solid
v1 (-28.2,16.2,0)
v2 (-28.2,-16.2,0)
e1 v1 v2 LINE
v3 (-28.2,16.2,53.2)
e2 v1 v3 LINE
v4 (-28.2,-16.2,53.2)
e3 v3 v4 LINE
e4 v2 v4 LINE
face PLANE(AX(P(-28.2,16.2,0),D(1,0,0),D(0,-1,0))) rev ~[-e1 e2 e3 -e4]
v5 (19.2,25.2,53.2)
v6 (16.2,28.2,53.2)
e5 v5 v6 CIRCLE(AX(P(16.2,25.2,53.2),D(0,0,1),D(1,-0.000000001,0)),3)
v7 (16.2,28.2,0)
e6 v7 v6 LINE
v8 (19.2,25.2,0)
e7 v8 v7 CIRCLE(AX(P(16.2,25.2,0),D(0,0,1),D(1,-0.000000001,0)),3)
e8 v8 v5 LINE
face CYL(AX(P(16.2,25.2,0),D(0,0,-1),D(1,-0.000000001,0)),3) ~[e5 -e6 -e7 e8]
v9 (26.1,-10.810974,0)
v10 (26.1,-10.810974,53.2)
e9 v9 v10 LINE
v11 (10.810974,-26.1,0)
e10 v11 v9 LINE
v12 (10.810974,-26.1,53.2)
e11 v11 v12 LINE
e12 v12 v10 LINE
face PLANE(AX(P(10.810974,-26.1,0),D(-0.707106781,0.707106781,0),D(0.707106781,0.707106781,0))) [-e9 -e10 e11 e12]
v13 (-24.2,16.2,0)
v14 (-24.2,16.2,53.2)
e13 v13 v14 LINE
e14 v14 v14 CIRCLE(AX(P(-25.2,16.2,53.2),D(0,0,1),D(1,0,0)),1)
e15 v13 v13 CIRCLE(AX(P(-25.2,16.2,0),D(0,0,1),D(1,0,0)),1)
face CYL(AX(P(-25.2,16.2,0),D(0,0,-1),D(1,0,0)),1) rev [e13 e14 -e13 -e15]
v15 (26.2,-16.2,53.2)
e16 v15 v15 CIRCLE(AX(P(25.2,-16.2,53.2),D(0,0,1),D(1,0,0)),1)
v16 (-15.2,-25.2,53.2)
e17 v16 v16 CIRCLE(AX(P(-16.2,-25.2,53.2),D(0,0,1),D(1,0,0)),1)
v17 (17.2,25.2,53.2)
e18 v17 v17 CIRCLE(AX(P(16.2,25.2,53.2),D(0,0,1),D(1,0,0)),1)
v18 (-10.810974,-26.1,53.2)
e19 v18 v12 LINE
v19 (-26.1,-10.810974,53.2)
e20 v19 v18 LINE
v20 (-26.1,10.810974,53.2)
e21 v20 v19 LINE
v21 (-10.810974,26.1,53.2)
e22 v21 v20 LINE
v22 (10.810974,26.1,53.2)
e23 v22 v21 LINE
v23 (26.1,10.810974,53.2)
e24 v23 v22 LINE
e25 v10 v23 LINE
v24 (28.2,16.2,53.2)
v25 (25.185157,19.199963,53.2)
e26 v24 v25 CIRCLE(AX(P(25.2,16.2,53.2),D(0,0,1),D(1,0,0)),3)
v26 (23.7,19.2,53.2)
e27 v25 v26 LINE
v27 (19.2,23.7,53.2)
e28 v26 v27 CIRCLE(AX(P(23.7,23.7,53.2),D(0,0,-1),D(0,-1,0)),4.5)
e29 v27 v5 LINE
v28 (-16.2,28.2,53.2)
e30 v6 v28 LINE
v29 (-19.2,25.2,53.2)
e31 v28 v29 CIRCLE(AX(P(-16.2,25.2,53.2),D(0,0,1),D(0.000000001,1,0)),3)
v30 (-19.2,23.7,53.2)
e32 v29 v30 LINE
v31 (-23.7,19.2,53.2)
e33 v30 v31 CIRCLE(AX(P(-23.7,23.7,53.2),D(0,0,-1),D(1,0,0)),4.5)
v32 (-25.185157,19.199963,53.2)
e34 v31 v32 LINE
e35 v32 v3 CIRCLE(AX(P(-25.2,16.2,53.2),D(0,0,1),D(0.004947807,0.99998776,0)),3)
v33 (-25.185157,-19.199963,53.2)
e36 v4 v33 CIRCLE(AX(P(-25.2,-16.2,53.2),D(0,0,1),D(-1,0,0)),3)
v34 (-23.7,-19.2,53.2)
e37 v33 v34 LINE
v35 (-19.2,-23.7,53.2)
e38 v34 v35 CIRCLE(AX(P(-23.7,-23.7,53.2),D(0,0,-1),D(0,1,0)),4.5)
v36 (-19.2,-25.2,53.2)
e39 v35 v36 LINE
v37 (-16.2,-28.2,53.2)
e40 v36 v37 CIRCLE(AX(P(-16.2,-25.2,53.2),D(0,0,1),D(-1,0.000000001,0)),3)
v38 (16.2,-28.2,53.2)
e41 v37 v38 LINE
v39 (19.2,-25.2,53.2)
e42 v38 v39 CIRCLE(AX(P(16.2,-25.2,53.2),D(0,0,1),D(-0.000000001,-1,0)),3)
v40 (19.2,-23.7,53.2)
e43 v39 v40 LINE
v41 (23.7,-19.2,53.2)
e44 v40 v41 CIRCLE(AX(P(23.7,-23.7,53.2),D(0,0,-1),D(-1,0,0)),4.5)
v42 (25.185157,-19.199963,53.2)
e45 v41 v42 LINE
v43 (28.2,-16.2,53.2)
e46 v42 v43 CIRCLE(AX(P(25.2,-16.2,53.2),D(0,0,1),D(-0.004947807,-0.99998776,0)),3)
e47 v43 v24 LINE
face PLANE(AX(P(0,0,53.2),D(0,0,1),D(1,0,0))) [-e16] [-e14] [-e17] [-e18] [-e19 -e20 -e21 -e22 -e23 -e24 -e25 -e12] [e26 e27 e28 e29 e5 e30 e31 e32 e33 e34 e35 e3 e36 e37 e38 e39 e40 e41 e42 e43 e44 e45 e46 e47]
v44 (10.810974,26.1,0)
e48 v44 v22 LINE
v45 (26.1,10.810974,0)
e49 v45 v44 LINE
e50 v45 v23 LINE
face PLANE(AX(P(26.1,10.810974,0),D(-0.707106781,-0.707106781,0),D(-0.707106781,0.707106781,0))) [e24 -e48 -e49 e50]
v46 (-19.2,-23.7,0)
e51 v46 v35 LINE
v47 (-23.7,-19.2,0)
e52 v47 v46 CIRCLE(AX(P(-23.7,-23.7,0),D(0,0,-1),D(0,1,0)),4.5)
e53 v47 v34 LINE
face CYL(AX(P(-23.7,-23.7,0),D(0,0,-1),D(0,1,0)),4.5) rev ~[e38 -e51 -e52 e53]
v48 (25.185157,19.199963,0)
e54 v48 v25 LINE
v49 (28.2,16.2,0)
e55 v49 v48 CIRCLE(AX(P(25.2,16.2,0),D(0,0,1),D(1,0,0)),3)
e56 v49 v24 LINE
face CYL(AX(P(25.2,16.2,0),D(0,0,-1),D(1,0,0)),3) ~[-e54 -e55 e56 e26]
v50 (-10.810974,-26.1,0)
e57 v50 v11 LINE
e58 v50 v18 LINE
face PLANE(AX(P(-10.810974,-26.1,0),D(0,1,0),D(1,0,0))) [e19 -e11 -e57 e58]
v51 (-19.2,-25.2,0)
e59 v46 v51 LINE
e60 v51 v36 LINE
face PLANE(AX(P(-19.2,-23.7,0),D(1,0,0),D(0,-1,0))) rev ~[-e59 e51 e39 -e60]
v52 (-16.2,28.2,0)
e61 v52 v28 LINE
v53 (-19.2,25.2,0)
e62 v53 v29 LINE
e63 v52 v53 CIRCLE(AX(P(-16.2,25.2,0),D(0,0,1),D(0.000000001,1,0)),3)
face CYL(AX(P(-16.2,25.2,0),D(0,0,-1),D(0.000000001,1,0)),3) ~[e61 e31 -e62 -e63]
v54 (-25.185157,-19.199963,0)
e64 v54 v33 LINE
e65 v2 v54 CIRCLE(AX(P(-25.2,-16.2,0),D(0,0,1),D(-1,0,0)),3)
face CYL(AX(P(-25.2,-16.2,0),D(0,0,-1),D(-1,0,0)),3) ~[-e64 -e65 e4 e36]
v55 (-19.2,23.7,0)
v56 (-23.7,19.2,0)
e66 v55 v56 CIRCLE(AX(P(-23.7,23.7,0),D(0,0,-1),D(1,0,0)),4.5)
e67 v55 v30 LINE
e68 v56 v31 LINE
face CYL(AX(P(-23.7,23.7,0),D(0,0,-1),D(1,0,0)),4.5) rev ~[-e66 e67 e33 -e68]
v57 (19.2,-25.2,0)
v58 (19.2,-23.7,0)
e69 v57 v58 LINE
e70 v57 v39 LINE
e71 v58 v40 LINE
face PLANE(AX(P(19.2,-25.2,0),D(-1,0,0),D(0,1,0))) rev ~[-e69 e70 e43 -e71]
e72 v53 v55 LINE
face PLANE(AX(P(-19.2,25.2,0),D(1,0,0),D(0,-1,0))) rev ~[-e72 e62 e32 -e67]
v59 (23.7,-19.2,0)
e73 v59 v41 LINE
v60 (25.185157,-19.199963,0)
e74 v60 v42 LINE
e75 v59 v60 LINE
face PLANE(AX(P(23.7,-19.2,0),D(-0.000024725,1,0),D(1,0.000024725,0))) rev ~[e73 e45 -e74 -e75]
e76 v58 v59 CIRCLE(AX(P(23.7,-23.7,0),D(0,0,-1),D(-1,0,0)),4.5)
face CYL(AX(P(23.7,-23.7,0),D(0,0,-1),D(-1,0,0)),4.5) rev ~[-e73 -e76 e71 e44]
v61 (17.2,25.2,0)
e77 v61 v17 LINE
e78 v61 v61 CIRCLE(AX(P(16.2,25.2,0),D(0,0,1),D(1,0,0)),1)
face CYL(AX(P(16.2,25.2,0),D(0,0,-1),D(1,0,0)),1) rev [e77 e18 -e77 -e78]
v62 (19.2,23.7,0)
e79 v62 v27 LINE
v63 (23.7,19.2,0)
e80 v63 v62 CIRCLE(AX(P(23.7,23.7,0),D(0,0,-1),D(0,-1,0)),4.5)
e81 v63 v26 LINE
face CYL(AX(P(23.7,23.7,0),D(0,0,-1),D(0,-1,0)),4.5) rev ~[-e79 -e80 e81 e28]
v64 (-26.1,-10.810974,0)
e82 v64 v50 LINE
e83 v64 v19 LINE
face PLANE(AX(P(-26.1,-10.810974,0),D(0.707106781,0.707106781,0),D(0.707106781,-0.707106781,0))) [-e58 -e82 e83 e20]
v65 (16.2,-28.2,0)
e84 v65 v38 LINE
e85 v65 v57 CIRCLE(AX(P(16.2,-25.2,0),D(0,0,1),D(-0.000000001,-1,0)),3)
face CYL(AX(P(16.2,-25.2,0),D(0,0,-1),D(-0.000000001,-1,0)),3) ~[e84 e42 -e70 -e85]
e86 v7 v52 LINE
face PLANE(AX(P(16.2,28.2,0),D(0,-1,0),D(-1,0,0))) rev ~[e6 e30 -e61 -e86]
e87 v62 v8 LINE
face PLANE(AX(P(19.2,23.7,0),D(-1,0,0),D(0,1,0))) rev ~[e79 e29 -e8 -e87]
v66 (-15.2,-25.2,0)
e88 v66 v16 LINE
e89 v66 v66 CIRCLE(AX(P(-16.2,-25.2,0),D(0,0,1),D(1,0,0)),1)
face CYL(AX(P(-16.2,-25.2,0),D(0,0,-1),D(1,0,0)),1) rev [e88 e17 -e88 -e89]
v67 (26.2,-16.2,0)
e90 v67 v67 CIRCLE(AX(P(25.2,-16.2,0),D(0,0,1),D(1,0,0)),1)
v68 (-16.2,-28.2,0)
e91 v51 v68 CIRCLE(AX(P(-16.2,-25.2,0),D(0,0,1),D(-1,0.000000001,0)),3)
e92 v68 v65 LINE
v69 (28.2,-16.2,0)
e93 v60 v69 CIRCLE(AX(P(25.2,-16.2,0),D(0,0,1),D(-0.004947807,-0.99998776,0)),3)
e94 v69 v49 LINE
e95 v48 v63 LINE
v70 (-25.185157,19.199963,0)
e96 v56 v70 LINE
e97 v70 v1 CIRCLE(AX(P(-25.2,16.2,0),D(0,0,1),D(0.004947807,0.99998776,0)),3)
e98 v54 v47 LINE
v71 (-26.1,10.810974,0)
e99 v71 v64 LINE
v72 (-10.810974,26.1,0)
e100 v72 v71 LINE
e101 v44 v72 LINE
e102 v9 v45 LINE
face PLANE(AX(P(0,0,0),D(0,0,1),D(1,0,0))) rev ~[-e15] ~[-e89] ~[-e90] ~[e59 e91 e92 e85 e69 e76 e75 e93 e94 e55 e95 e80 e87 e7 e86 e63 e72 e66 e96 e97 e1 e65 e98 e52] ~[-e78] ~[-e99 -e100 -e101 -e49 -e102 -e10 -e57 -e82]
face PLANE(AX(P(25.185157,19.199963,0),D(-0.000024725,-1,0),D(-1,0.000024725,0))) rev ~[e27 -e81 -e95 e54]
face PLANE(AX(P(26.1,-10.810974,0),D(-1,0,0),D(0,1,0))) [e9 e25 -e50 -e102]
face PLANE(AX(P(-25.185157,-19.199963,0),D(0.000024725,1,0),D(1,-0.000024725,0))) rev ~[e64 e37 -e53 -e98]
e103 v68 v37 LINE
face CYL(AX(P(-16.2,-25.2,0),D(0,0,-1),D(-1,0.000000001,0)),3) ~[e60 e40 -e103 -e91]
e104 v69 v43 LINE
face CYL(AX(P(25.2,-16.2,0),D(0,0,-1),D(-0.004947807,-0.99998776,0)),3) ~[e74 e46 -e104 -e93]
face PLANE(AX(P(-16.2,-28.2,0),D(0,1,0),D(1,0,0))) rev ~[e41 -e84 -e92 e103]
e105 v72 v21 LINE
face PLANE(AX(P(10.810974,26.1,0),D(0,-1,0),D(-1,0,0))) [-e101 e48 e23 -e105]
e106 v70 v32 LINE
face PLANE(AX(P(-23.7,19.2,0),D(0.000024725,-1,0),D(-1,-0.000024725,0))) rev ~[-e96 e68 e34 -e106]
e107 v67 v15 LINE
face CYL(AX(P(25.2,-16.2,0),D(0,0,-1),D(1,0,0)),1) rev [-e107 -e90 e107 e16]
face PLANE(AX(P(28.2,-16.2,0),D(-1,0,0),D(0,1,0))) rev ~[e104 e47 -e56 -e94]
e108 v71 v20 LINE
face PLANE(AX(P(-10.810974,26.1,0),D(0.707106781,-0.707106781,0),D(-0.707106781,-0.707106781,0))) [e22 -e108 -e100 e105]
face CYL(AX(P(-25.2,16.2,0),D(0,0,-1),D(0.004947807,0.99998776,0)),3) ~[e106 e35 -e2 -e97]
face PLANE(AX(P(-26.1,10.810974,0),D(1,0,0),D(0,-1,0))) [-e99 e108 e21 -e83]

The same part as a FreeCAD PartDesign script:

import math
import FreeCAD as App
import Part
import Sketcher
Q = App.Units.Quantity

doc = App.newDocument("Part")
body = doc.addObject("PartDesign::Body", "Body")

# Sketch on XY plane
sketch1 = body.newObject("Sketcher::SketchObject", "Sketch")
sketch1.AttachmentSupport = (doc.getObject("XY_Plane"), [""])
sketch1.MapMode = "FlatFace"
sketch1.addGeometry(Part.LineSegment(App.Vector(-23.7, 19.2, 0), App.Vector(-25.185157, 19.199963, 0)), False)
sketch1.addGeometry(Part.ArcOfCircle(Part.Circle(App.Vector(-25.2, 16.2, 0), App.Vector(0, 0, 1), 3), math.radians(89.71651), math.radians(180)), False)
sketch1.addGeometry(Part.LineSegment(App.Vector(-28.2, 16.2, 0), App.Vector(-28.2, -16.2, 0)), False)
sketch1.addGeometry(Part.ArcOfCircle(Part.Circle(App.Vector(-25.2, -16.2, 0), App.Vector(0, 0, 1), 3), math.radians(180), math.radians(270.28349)), False)
sketch1.addGeometry(Part.LineSegment(App.Vector(-25.185157, -19.199963, 0), App.Vector(-23.7, -19.2, 0)), False)
sketch1.addGeometry(Part.ArcOfCircle(Part.Circle(App.Vector(-23.7, -23.7, 0), App.Vector(0, 0, 1), 4.5), math.radians(0), math.radians(90)), False)
sketch1.addGeometry(Part.LineSegment(App.Vector(-19.2, -23.7, 0), App.Vector(-19.2, -25.2, 0)), False)
sketch1.addGeometry(Part.ArcOfCircle(Part.Circle(App.Vector(-16.2, -25.2, 0), App.Vector(0, 0, 1), 3), math.radians(180), math.radians(270)), False)
sketch1.addGeometry(Part.LineSegment(App.Vector(-16.2, -28.2, 0), App.Vector(16.2, -28.2, 0)), False)
sketch1.addGeometry(Part.ArcOfCircle(Part.Circle(App.Vector(16.2, -25.2, 0), App.Vector(0, 0, 1), 3), math.radians(-90), math.radians(0)), False)
sketch1.addGeometry(Part.LineSegment(App.Vector(19.2, -25.2, 0), App.Vector(19.2, -23.7, 0)), False)
sketch1.addGeometry(Part.ArcOfCircle(Part.Circle(App.Vector(23.7, -23.7, 0), App.Vector(0, 0, 1), 4.5), math.radians(90), math.radians(180)), False)
sketch1.addGeometry(Part.LineSegment(App.Vector(23.7, -19.2, 0), App.Vector(25.185157, -19.199963, 0)), False)
sketch1.addGeometry(Part.ArcOfCircle(Part.Circle(App.Vector(25.2, -16.2, 0), App.Vector(0, 0, 1), 3), math.radians(-90.28349), math.radians(0)), False)
sketch1.addGeometry(Part.LineSegment(App.Vector(28.2, -16.2, 0), App.Vector(28.2, 16.2, 0)), False)
sketch1.addGeometry(Part.ArcOfCircle(Part.Circle(App.Vector(25.2, 16.2, 0), App.Vector(0, 0, 1), 3), math.radians(0), math.radians(90.28349)), False)
sketch1.addGeometry(Part.LineSegment(App.Vector(25.185157, 19.199963, 0), App.Vector(23.7, 19.2, 0)), False)
sketch1.addGeometry(Part.ArcOfCircle(Part.Circle(App.Vector(23.7, 23.7, 0), App.Vector(0, 0, 1), 4.5), math.radians(-180), math.radians(-90)), False)
sketch1.addGeometry(Part.LineSegment(App.Vector(19.2, 23.7, 0), App.Vector(19.2, 25.2, 0)), False)
sketch1.addGeometry(Part.ArcOfCircle(Part.Circle(App.Vector(16.2, 25.2, 0), App.Vector(0, 0, 1), 3), math.radians(0), math.radians(90)), False)
sketch1.addGeometry(Part.LineSegment(App.Vector(16.2, 28.2, 0), App.Vector(-16.2, 28.2, 0)), False)
sketch1.addGeometry(Part.ArcOfCircle(Part.Circle(App.Vector(-16.2, 25.2, 0), App.Vector(0, 0, 1), 3), math.radians(90), math.radians(180)), False)
sketch1.addGeometry(Part.LineSegment(App.Vector(-19.2, 25.2, 0), App.Vector(-19.2, 23.7, 0)), False)
sketch1.addGeometry(Part.ArcOfCircle(Part.Circle(App.Vector(-23.7, 23.7, 0), App.Vector(0, 0, 1), 4.5), math.radians(-90), math.radians(0)), False)
sketch1.addGeometry(Part.Circle(App.Vector(-16.2, -25.2, 0), App.Vector(0, 0, 1), 1), False)
sketch1.addGeometry(Part.Circle(App.Vector(25.2, -16.2, 0), App.Vector(0, 0, 1), 1), False)
sketch1.addGeometry(Part.LineSegment(App.Vector(26.1, -10.810974, 0), App.Vector(10.810974, -26.1, 0)), False)
sketch1.addGeometry(Part.LineSegment(App.Vector(10.810974, -26.1, 0), App.Vector(-10.810974, -26.1, 0)), False)
sketch1.addGeometry(Part.LineSegment(App.Vector(-10.810974, -26.1, 0), App.Vector(-26.1, -10.810974, 0)), False)
sketch1.addGeometry(Part.LineSegment(App.Vector(-26.1, -10.810974, 0), App.Vector(-26.1, 10.810974, 0)), False)
sketch1.addGeometry(Part.LineSegment(App.Vector(-26.1, 10.810974, 0), App.Vector(-10.810974, 26.1, 0)), False)
sketch1.addGeometry(Part.LineSegment(App.Vector(-10.810974, 26.1, 0), App.Vector(10.810974, 26.1, 0)), False)
sketch1.addGeometry(Part.LineSegment(App.Vector(10.810974, 26.1, 0), App.Vector(26.1, 10.810974, 0)), False)
sketch1.addGeometry(Part.LineSegment(App.Vector(26.1, 10.810974, 0), App.Vector(26.1, -10.810974, 0)), False)
sketch1.addGeometry(Part.Circle(App.Vector(-25.2, 16.2, 0), App.Vector(0, 0, 1), 1), False)
sketch1.addGeometry(Part.Circle(App.Vector(16.2, 25.2, 0), App.Vector(0, 0, 1), 1), False)
sketch1.addConstraint(Sketcher.Constraint("Coincident", 0, 2, 1, 1))
sketch1.addConstraint(Sketcher.Constraint("Tangent", 1, 2, 2, 1))
sketch1.addConstraint(Sketcher.Constraint("Tangent", 2, 2, 3, 1))
sketch1.addConstraint(Sketcher.Constraint("Coincident", 3, 2, 4, 1))
sketch1.addConstraint(Sketcher.Constraint("Coincident", 4, 2, 5, 2))
sketch1.addConstraint(Sketcher.Constraint("Tangent", 5, 1, 6, 1))
sketch1.addConstraint(Sketcher.Constraint("Tangent", 6, 2, 7, 1))
sketch1.addConstraint(Sketcher.Constraint("Tangent", 7, 2, 8, 1))
sketch1.addConstraint(Sketcher.Constraint("Tangent", 8, 2, 9, 1))
sketch1.addConstraint(Sketcher.Constraint("Tangent", 9, 2, 10, 1))
sketch1.addConstraint(Sketcher.Constraint("Tangent", 10, 2, 11, 2))
sketch1.addConstraint(Sketcher.Constraint("Coincident", 11, 1, 12, 1))
sketch1.addConstraint(Sketcher.Constraint("Coincident", 12, 2, 13, 1))
sketch1.addConstraint(Sketcher.Constraint("Tangent", 13, 2, 14, 1))
sketch1.addConstraint(Sketcher.Constraint("Tangent", 14, 2, 15, 1))
sketch1.addConstraint(Sketcher.Constraint("Coincident", 15, 2, 16, 1))
sketch1.addConstraint(Sketcher.Constraint("Coincident", 16, 2, 17, 2))
sketch1.addConstraint(Sketcher.Constraint("Tangent", 17, 1, 18, 1))
sketch1.addConstraint(Sketcher.Constraint("Tangent", 18, 2, 19, 1))
sketch1.addConstraint(Sketcher.Constraint("Tangent", 19, 2, 20, 1))
sketch1.addConstraint(Sketcher.Constraint("Tangent", 20, 2, 21, 1))
sketch1.addConstraint(Sketcher.Constraint("Tangent", 21, 2, 22, 1))
sketch1.addConstraint(Sketcher.Constraint("Tangent", 22, 2, 23, 2))
sketch1.addConstraint(Sketcher.Constraint("Coincident", 23, 1, 0, 1))
sketch1.addConstraint(Sketcher.Constraint("Coincident", 26, 2, 27, 1))
sketch1.addConstraint(Sketcher.Constraint("Coincident", 27, 2, 28, 1))
sketch1.addConstraint(Sketcher.Constraint("Coincident", 28, 2, 29, 1))
sketch1.addConstraint(Sketcher.Constraint("Coincident", 29, 2, 30, 1))
sketch1.addConstraint(Sketcher.Constraint("Coincident", 30, 2, 31, 1))
sketch1.addConstraint(Sketcher.Constraint("Coincident", 31, 2, 32, 1))
sketch1.addConstraint(Sketcher.Constraint("Coincident", 32, 2, 33, 1))
sketch1.addConstraint(Sketcher.Constraint("Coincident", 33, 2, 26, 1))
sketch1.addConstraint(Sketcher.Constraint("Vertical", 2))
sketch1.addConstraint(Sketcher.Constraint("Vertical", 6))
sketch1.addConstraint(Sketcher.Constraint("Horizontal", 8))
sketch1.addConstraint(Sketcher.Constraint("Vertical", 10))
sketch1.addConstraint(Sketcher.Constraint("Vertical", 14))
sketch1.addConstraint(Sketcher.Constraint("Vertical", 18))
sketch1.addConstraint(Sketcher.Constraint("Horizontal", 20))
sketch1.addConstraint(Sketcher.Constraint("Vertical", 22))
sketch1.addConstraint(Sketcher.Constraint("Horizontal", 27))
sketch1.addConstraint(Sketcher.Constraint("Vertical", 29))
sketch1.addConstraint(Sketcher.Constraint("Horizontal", 31))
sketch1.addConstraint(Sketcher.Constraint("Vertical", 33))
sketch1.addConstraint(Sketcher.Constraint("Coincident", 24, 3, 7, 3))
sketch1.addConstraint(Sketcher.Constraint("Coincident", 25, 3, 13, 3))
sketch1.addConstraint(Sketcher.Constraint("Coincident", 34, 3, 1, 3))
sketch1.addConstraint(Sketcher.Constraint("Coincident", 35, 3, 19, 3))
sketch1.addConstraint(Sketcher.Constraint("Equal", 1, 3))
sketch1.addConstraint(Sketcher.Constraint("Equal", 3, 7))
sketch1.addConstraint(Sketcher.Constraint("Equal", 7, 9))
sketch1.addConstraint(Sketcher.Constraint("Equal", 5, 11))
sketch1.addConstraint(Sketcher.Constraint("Equal", 9, 13))
sketch1.addConstraint(Sketcher.Constraint("Equal", 13, 15))
sketch1.addConstraint(Sketcher.Constraint("Equal", 11, 17))
sketch1.addConstraint(Sketcher.Constraint("Equal", 15, 19))
sketch1.addConstraint(Sketcher.Constraint("Equal", 19, 21))
sketch1.addConstraint(Sketcher.Constraint("Equal", 17, 23))
sketch1.addConstraint(Sketcher.Constraint("Equal", 24, 25))
sketch1.addConstraint(Sketcher.Constraint("Equal", 25, 34))
sketch1.addConstraint(Sketcher.Constraint("Equal", 34, 35))
sketch1.addConstraint(Sketcher.Constraint("Symmetric", 1, 3, 13, 3, -1, 1))
sketch1.addConstraint(Sketcher.Constraint("Symmetric", 5, 3, 17, 3, -1, 1))
sketch1.addConstraint(Sketcher.Constraint("Symmetric", 9, 3, 21, 3, -1, 1))
sketch1.addConstraint(Sketcher.Constraint("Symmetric", 3, 2, 15, 2, -1, 1))
sketch1.addConstraint(Sketcher.Constraint("Symmetric", 11, 1, 23, 1, -1, 1))
sketch1.addConstraint(Sketcher.Constraint("Symmetric", 26, 2, 30, 2, -1, 1))
sketch1.addConstraint(Sketcher.Constraint("Symmetric", 28, 2, 32, 2, -1, 1))
sketch1.addConstraint(Sketcher.Constraint("Symmetric", 5, 3, 11, 3, -2))
sketch1.addConstraint(Sketcher.Constraint("Symmetric", 3, 2, 12, 2, -2))
sketch1.addConstraint(Sketcher.Constraint("Parallel", 0, 12))
sketch1.addConstraint(Sketcher.Constraint("Perpendicular", 26, 28))
sketch1.addConstraint(Sketcher.Constraint("Perpendicular", 28, 30))
sketch1.addConstraint(Sketcher.Constraint("Perpendicular", 30, 32))
sketch1.addConstraint(Sketcher.Constraint("Horizontal", 29, 2, 32, 2))
sketch1.addConstraint(Sketcher.Constraint("Vertical", 23, 3, 4, 2))
sketch1.addConstraint(Sketcher.Constraint("Vertical", 17, 3, 11, 1))
sketch1.addConstraint(Sketcher.Constraint("Vertical", 11, 1, 16, 2))
sketch1.addConstraint(Sketcher.Constraint("Vertical", 27, 2, 30, 2))
sketch1.addConstraint(Sketcher.Constraint("Equal", 20, 2))
sketch1.addConstraint(Sketcher.Constraint("Equal", 31, 29))
sketch1.addConstraint(Sketcher.Constraint("Diameter", 24, Q("2 mm")))
sketch1.addConstraint(Sketcher.Constraint("Radius", 1, Q("3 mm")))
sketch1.addConstraint(Sketcher.Constraint("Radius", 5, Q("4.5 mm")))
sketch1.addConstraint(Sketcher.Constraint("DistanceX", 8, 1, 8, 2, Q("32.4 mm")))
sketch1.addConstraint(Sketcher.Constraint("DistanceY", 6, 2, 6, 1, Q("1.5 mm")))
sketch1.addConstraint(Sketcher.Constraint("DistanceX", 3, 3, 7, 3, Q("9 mm")))
sketch1.addConstraint(Sketcher.Constraint("DistanceY", 7, 3, 3, 3, Q("9 mm")))
sketch1.addConstraint(Sketcher.Constraint("DistanceY", 26, 2, -1, 1, Q("26.1 mm")))
sketch1.addConstraint(Sketcher.Constraint("DistanceX", 27, 2, 27, 1, Q("21.621948 mm")))
sketch1.addConstraint(Sketcher.Constraint("Distance", 0, Q("1.485157 mm")))
pad1 = body.newObject("PartDesign::Pad", "Pad")
pad1.Profile = sketch1
pad1.Length = 53.2

doc.recompute()
